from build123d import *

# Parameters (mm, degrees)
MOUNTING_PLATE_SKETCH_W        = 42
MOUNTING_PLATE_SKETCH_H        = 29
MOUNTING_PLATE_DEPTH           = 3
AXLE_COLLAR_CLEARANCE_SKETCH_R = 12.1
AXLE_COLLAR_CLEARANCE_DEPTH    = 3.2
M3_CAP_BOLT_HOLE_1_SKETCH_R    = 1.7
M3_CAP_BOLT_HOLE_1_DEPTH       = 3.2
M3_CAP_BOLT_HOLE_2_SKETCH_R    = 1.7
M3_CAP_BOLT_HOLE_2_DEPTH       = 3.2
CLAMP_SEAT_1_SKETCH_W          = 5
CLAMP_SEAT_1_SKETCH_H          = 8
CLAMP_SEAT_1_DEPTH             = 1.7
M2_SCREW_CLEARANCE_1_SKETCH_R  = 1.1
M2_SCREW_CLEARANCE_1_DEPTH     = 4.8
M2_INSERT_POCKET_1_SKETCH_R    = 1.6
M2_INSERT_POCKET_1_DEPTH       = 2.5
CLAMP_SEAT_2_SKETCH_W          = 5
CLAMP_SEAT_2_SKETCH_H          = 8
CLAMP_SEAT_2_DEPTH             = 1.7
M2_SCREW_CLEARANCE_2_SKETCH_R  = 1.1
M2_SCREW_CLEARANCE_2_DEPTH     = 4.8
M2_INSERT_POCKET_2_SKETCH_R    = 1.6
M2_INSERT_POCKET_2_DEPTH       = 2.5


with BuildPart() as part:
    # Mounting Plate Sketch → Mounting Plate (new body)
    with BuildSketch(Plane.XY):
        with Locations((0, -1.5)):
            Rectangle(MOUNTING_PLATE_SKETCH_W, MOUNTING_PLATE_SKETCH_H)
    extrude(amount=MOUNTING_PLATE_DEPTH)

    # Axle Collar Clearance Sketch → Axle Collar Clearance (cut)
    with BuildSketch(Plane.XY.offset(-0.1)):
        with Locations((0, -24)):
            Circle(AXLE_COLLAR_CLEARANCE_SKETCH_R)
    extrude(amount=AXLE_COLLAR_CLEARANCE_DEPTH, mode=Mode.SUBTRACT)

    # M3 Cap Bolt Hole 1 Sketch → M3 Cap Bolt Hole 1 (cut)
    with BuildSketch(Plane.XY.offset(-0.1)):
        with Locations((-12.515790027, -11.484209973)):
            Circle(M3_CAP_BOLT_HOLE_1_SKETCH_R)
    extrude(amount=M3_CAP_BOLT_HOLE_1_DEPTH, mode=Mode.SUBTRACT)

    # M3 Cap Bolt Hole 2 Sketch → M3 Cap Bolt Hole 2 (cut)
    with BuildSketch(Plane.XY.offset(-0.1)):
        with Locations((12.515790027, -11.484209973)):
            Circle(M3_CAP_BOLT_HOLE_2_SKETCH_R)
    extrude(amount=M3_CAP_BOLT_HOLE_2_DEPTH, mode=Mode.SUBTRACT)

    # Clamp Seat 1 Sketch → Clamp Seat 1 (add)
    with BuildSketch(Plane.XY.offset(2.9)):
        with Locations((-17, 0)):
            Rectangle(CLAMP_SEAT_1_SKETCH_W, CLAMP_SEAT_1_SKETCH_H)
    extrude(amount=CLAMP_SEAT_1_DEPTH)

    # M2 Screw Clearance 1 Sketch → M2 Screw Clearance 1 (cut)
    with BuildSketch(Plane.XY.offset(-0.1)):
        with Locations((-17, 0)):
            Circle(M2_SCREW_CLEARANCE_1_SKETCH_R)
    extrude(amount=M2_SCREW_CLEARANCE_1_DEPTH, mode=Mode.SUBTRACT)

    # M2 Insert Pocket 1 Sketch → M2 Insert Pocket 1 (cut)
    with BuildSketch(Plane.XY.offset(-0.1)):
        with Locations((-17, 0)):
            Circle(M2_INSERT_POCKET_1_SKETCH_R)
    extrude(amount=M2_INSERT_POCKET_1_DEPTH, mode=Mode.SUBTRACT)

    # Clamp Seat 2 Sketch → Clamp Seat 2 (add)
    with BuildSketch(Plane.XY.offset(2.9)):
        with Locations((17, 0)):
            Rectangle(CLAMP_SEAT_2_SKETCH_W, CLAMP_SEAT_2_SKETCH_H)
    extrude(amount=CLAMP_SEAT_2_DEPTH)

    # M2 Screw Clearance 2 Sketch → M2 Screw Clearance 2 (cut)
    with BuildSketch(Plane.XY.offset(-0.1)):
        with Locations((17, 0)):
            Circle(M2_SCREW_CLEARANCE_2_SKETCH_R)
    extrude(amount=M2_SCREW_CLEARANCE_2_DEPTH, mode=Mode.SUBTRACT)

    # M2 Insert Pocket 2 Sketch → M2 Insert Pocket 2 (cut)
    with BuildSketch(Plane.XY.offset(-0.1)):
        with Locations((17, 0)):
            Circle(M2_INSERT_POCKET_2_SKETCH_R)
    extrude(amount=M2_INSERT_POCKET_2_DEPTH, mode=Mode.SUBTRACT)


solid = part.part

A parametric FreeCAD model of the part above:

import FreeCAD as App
import Part
import Sketcher
Q = App.Units.Quantity

doc = App.newDocument("Part")
body = doc.addObject("PartDesign::Body", "Body")

# Sketch on XY plane
sketch1 = body.newObject("Sketcher::SketchObject", "Sketch")
sketch1.AttachmentSupport = (doc.getObject("XY_Plane"), [""])
sketch1.MapMode = "FlatFace"
sketch1.addGeometry(Part.LineSegment(App.Vector(-21, 13, 0), App.Vector(-21, -16, 0)), False)
sketch1.addGeometry(Part.LineSegment(App.Vector(-21, -16, 0), App.Vector(21, -16, 0)), False)
sketch1.addGeometry(Part.LineSegment(App.Vector(21, -16, 0), App.Vector(21, 13, 0)), False)
sketch1.addGeometry(Part.LineSegment(App.Vector(21, 13, 0), App.Vector(-21, 13, 0)), False)
sketch1.addConstraint(Sketcher.Constraint("Coincident", 0, 2, 1, 1))
sketch1.addConstraint(Sketcher.Constraint("Coincident", 1, 2, 2, 1))
sketch1.addConstraint(Sketcher.Constraint("Coincident", 2, 2, 3, 1))
sketch1.addConstraint(Sketcher.Constraint("Coincident", 3, 2, 0, 1))
sketch1.addConstraint(Sketcher.Constraint("Vertical", 0))
sketch1.addConstraint(Sketcher.Constraint("Horizontal", 1))
sketch1.addConstraint(Sketcher.Constraint("Vertical", 2))
sketch1.addConstraint(Sketcher.Constraint("Horizontal", 3))
sketch1.addConstraint(Sketcher.Constraint("DistanceX", 1, 1, 1, 2, Q("42 mm")))
sketch1.addConstraint(Sketcher.Constraint("DistanceY", 0, 2, 0, 1, Q("29 mm")))
sketch1.addConstraint(Sketcher.Constraint("DistanceX", 0, 2, -1, 1, Q("21 mm")))
sketch1.addConstraint(Sketcher.Constraint("DistanceY", 0, 2, -1, 1, Q("16 mm")))
pad1 = body.newObject("PartDesign::Pad", "Pad")
pad1.Profile = sketch1
pad1.Length = 3

# Sketch on XY plane
sketch2 = body.newObject("Sketcher::SketchObject", "Sketch001")
sketch2.AttachmentSupport = (doc.getObject("XY_Plane"), [""])
sketch2.MapMode = "FlatFace"
sketch2.AttachmentOffset = App.Placement(App.Vector(0, 0, -0.1), App.Rotation())
sketch2.addGeometry(Part.Circle(App.Vector(0, -24, 0), App.Vector(0, 0, 1), 12), False)
sketch2.addConstraint(Sketcher.Constraint("PointOnObject", 0, 3, -2))
sketch2.addConstraint(Sketcher.Constraint("Diameter", 0, Q("24.2 mm")))
sketch2.addConstraint(Sketcher.Constraint("DistanceY", 0, 3, -1, 1, Q("24 mm")))
pocket1 = body.newObject("PartDesign::Pocket", "Pocket")
pocket1.Profile = sketch2
pocket1.Length = 3.2
pocket1.Reversed = True

# Sketch on XY plane
sketch3 = body.newObject("Sketcher::SketchObject", "Sketch002")
sketch3.AttachmentSupport = (doc.getObject("XY_Plane"), [""])
sketch3.MapMode = "FlatFace"
sketch3.AttachmentOffset = App.Placement(App.Vector(0, 0, -0.1), App.Rotation())
sketch3.addGeometry(Part.Circle(App.Vector(-12.5, -11.5, 0), App.Vector(0, 0, 1), 1.7), False)
sketch3.addConstraint(Sketcher.Constraint("Diameter", 0, Q("3.4 mm")))
sketch3.addConstraint(Sketcher.Constraint("DistanceX", 0, 3, -1, 1, Q("12.51579 mm")))
sketch3.addConstraint(Sketcher.Constraint("DistanceY", 0, 3, -1, 1, Q("11.48421 mm")))
pocket2 = body.newObject("PartDesign::Pocket", "Pocket001")
pocket2.Profile = sketch3
pocket2.Length = 3.2
pocket2.Reversed = True

# Sketch on XY plane
sketch4 = body.newObject("Sketcher::SketchObject", "Sketch003")
sketch4.AttachmentSupport = (doc.getObject("XY_Plane"), [""])
sketch4.MapMode = "FlatFace"
sketch4.AttachmentOffset = App.Placement(App.Vector(0, 0, -0.1), App.Rotation())
sketch4.addGeometry(Part.Circle(App.Vector(12.5, -11.5, 0), App.Vector(0, 0, 1), 1.7), False)
sketch4.addConstraint(Sketcher.Constraint("Diameter", 0, Q("3.4 mm")))
sketch4.addConstraint(Sketcher.Constraint("DistanceX", -1, 1, 0, 3, Q("12.51579 mm")))
sketch4.addConstraint(Sketcher.Constraint("DistanceY", 0, 3, -1, 1, Q("11.48421 mm")))
pocket3 = body.newObject("PartDesign::Pocket", "Pocket002")
pocket3.Profile = sketch4
pocket3.Length = 3.2
pocket3.Reversed = True

# Sketch on XY plane
sketch5 = body.newObject("Sketcher::SketchObject", "Sketch004")
sketch5.AttachmentSupport = (doc.getObject("XY_Plane"), [""])
sketch5.MapMode = "FlatFace"
sketch5.AttachmentOffset = App.Placement(App.Vector(0, 0, 2.9), App.Rotation())
sketch5.addGeometry(Part.LineSegment(App.Vector(-20, 4, 0), App.Vector(-20, -4, 0)), False)
sketch5.addGeometry(Part.LineSegment(App.Vector(-20, -4, 0), App.Vector(-14, -4, 0)), False)
sketch5.addGeometry(Part.LineSegment(App.Vector(-14, -4, 0), App.Vector(-14, 4, 0)), False)
sketch5.addGeometry(Part.LineSegment(App.Vector(-14, 4, 0), App.Vector(-20, 4, 0)), False)
sketch5.addConstraint(Sketcher.Constraint("Coincident", 0, 2, 1, 1))
sketch5.addConstraint(Sketcher.Constraint("Coincident", 1, 2, 2, 1))
sketch5.addConstraint(Sketcher.Constraint("Coincident", 2, 2, 3, 1))
sketch5.addConstraint(Sketcher.Constraint("Coincident", 3, 2, 0, 1))
sketch5.addConstraint(Sketcher.Constraint("Vertical", 0))
sketch5.addConstraint(Sketcher.Constraint("Horizontal", 1))
sketch5.addConstraint(Sketcher.Constraint("Vertical", 2))
sketch5.addConstraint(Sketcher.Constraint("Horizontal", 3))
sketch5.addConstraint(Sketcher.Constraint("DistanceX", 1, 1, 1, 2, Q("5 mm")))
sketch5.addConstraint(Sketcher.Constraint("DistanceY", 0, 2, 0, 1, Q("8 mm")))
sketch5.addConstraint(Sketcher.Constraint("DistanceY", 0, 2, -1, 1, Q("4 mm")))
sketch5.addConstraint(Sketcher.Constraint("DistanceX", 0, 2, -1, 1, Q("19.5 mm")))
pad2 = body.newObject("PartDesign::Pad", "Pad001")
pad2.Profile = sketch5
pad2.Length = 1.7

# Sketch on XY plane
sketch6 = body.newObject("Sketcher::SketchObject", "Sketch005")
sketch6.AttachmentSupport = (doc.getObject("XY_Plane"), [""])
sketch6.MapMode = "FlatFace"
sketch6.AttachmentOffset = App.Placement(App.Vector(0, 0, -0.1), App.Rotation())
sketch6.addGeometry(Part.Circle(App.Vector(-17, 0, 0), App.Vector(0, 0, 1), 1.1), False)
sketch6.addConstraint(Sketcher.Constraint("PointOnObject", 0, 3, -1))
sketch6.addConstraint(Sketcher.Constraint("Diameter", 0, Q("2.2 mm")))
sketch6.addConstraint(Sketcher.Constraint("DistanceX", 0, 3, -1, 1, Q("17 mm")))
pocket4 = body.newObject("PartDesign::Pocket", "Pocket003")
pocket4.Profile = sketch6
pocket4.Length = 4.8
pocket4.Reversed = True

# Sketch on XY plane
sketch7 = body.newObject("Sketcher::SketchObject", "Sketch006")
sketch7.AttachmentSupport = (doc.getObject("XY_Plane"), [""])
sketch7.MapMode = "FlatFace"
sketch7.AttachmentOffset = App.Placement(App.Vector(0, 0, -0.1), App.Rotation())
sketch7.addGeometry(Part.Circle(App.Vector(-17, 0, 0), App.Vector(0, 0, 1), 1.6), False)
sketch7.addConstraint(Sketcher.Constraint("PointOnObject", 0, 3, -1))
sketch7.addConstraint(Sketcher.Constraint("Diameter", 0, Q("3.2 mm")))
sketch7.addConstraint(Sketcher.Constraint("DistanceX", 0, 3, -1, 1, Q("17 mm")))
pocket5 = body.newObject("PartDesign::Pocket", "Pocket004")
pocket5.Profile = sketch7
pocket5.Length = 2.5
pocket5.Reversed = True

# Sketch on XY plane
sketch8 = body.newObject("Sketcher::SketchObject", "Sketch007")
sketch8.AttachmentSupport = (doc.getObject("XY_Plane"), [""])
sketch8.MapMode = "FlatFace"
sketch8.AttachmentOffset = App.Placement(App.Vector(0, 0, 2.9), App.Rotation())
sketch8.addGeometry(Part.LineSegment(App.Vector(14, 4, 0), App.Vector(14, -4, 0)), False)
sketch8.addGeometry(Part.LineSegment(App.Vector(14, -4, 0), App.Vector(20, -4, 0)), False)
sketch8.addGeometry(Part.LineSegment(App.Vector(20, -4, 0), App.Vector(20, 4, 0)), False)
sketch8.addGeometry(Part.LineSegment(App.Vector(20, 4, 0), App.Vector(14, 4, 0)), False)
sketch8.addConstraint(Sketcher.Constraint("Coincident", 0, 2, 1, 1))
sketch8.addConstraint(Sketcher.Constraint("Coincident", 1, 2, 2, 1))
sketch8.addConstraint(Sketcher.Constraint("Coincident", 2, 2, 3, 1))
sketch8.addConstraint(Sketcher.Constraint("Coincident", 3, 2, 0, 1))
sketch8.addConstraint(Sketcher.Constraint("Vertical", 0))
sketch8.addConstraint(Sketcher.Constraint("Horizontal", 1))
sketch8.addConstraint(Sketcher.Constraint("Vertical", 2))
sketch8.addConstraint(Sketcher.Constraint("Horizontal", 3))
sketch8.addConstraint(Sketcher.Constraint("DistanceX", 1, 1, 1, 2, Q("5 mm")))
sketch8.addConstraint(Sketcher.Constraint("DistanceY", 0, 2, 0, 1, Q("8 mm")))
sketch8.addConstraint(Sketcher.Constraint("DistanceY", 0, 2, -1, 1, Q("4 mm")))
sketch8.addConstraint(Sketcher.Constraint("DistanceX", -1, 1, 0, 2, Q("14.5 mm")))
pad3 = body.newObject("PartDesign::Pad", "Pad002")
pad3.Profile = sketch8
pad3.Length = 1.7

# Sketch on XY plane
sketch9 = body.newObject("Sketcher::SketchObject", "Sketch008")
sketch9.AttachmentSupport = (doc.getObject("XY_Plane"), [""])
sketch9.MapMode = "FlatFace"
sketch9.AttachmentOffset = App.Placement(App.Vector(0, 0, -0.1), App.Rotation())
sketch9.addGeometry(Part.Circle(App.Vector(17, 0, 0), App.Vector(0, 0, 1), 1.1), False)
sketch9.addConstraint(Sketcher.Constraint("PointOnObject", 0, 3, -1))
sketch9.addConstraint(Sketcher.Constraint("Diameter", 0, Q("2.2 mm")))
sketch9.addConstraint(Sketcher.Constraint("DistanceX", -1, 1, 0, 3, Q("17 mm")))
pocket6 = body.newObject("PartDesign::Pocket", "Pocket005")
pocket6.Profile = sketch9
pocket6.Length = 4.8
pocket6.Reversed = True

# Sketch on XY plane
sketch10 = body.newObject("Sketcher::SketchObject", "Sketch009")
sketch10.AttachmentSupport = (doc.getObject("XY_Plane"), [""])
sketch10.MapMode = "FlatFace"
sketch10.AttachmentOffset = App.Placement(App.Vector(0, 0, -0.1), App.Rotation())
sketch10.addGeometry(Part.Circle(App.Vector(17, 0, 0), App.Vector(0, 0, 1), 1.6), False)
sketch10.addConstraint(Sketcher.Constraint("PointOnObject", 0, 3, -1))
sketch10.addConstraint(Sketcher.Constraint("Diameter", 0, Q("3.2 mm")))
sketch10.addConstraint(Sketcher.Constraint("DistanceX", -1, 1, 0, 3, Q("17 mm")))
pocket7 = body.newObject("PartDesign::Pocket", "Pocket006")
pocket7.Profile = sketch10
pocket7.Length = 2.5
pocket7.Reversed = True

doc.recompute()
